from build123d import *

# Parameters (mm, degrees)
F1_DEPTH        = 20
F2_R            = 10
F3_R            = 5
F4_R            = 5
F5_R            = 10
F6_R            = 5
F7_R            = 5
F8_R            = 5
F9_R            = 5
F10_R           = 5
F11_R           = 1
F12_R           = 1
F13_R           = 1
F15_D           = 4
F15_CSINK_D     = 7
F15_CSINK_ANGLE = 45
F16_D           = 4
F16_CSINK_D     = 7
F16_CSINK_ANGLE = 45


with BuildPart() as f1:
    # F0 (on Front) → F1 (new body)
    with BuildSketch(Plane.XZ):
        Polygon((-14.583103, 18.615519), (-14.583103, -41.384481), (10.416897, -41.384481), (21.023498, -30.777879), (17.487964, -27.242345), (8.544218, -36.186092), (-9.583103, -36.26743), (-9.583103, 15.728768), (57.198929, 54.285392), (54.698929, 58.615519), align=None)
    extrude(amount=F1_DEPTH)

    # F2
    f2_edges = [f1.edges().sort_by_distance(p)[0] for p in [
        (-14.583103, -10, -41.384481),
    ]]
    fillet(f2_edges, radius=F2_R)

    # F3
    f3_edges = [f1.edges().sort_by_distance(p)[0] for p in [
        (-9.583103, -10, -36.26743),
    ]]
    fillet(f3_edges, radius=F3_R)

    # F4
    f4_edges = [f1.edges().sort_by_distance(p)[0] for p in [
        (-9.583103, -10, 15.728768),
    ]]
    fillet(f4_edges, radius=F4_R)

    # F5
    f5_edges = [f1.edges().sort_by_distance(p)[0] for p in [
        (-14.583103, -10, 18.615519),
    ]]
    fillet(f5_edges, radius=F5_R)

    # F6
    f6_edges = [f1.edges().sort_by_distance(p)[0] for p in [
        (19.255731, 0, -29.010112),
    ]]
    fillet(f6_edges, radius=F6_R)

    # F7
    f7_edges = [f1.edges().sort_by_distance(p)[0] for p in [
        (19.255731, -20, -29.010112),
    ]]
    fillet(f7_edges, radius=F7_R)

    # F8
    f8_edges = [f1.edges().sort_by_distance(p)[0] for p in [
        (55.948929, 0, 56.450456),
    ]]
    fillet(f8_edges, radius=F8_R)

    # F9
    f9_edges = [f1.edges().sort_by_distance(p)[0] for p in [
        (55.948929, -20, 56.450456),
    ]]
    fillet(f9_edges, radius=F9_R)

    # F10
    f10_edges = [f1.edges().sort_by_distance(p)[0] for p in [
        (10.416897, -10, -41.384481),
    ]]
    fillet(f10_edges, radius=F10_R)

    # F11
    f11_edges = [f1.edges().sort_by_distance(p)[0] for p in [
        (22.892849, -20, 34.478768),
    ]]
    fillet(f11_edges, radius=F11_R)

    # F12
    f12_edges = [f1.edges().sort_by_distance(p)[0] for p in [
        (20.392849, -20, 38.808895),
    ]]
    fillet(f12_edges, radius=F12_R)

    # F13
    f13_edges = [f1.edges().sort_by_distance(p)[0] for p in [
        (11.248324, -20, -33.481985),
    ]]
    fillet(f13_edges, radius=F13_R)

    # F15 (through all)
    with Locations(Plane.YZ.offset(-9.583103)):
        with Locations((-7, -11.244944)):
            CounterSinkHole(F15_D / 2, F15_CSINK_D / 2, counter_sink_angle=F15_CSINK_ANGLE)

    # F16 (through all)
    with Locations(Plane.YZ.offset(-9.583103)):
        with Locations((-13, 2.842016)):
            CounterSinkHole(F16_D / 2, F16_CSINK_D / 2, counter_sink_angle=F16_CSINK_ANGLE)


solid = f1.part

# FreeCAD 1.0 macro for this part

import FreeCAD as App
import Part
import Sketcher
Q = App.Units.Quantity


def edges_at(feature, points):
    """Names of the edges that pass closest to the given points."""
    edges = feature.Shape.Edges
    near = lambda p: min(range(len(edges)), key=lambda i: edges[i].distToShape(Part.Vertex(*p))[0])
    return sorted({f"Edge{near(p) + 1}" for p in points})

doc = App.newDocument("Part")
body = doc.addObject("PartDesign::Body", "Body")

sketch1 = body.newObject("Sketcher::SketchObject", "Sketch")
sketch1.AttachmentSupport = (doc.getObject("XZ_Plane"), [""])
sketch1.MapMode = "FlatFace"
sketch1.addGeometry(Part.LineSegment(App.Vector(-14.583103, 18.615519, 0), App.Vector(-14.583103, -41.384481, 0)), False)
sketch1.addGeometry(Part.LineSegment(App.Vector(-14.583103, -41.384481, 0), App.Vector(10.416897, -41.384481, 0)), False)
sketch1.addGeometry(Part.LineSegment(App.Vector(10.416897, -41.384481, 0), App.Vector(21.023498, -30.777879, 0)), False)
sketch1.addGeometry(Part.LineSegment(App.Vector(21.023498, -30.777879, 0), App.Vector(17.487964, -27.242345, 0)), False)
sketch1.addGeometry(Part.LineSegment(App.Vector(17.487964, -27.242345, 0), App.Vector(8.544218, -36.186092, 0)), False)
sketch1.addGeometry(Part.LineSegment(App.Vector(8.544218, -36.186092, 0), App.Vector(-9.583103, -36.26743, 0)), False)
sketch1.addGeometry(Part.LineSegment(App.Vector(-9.583103, -36.26743, 0), App.Vector(-9.583103, 15.728768, 0)), False)
sketch1.addGeometry(Part.LineSegment(App.Vector(-9.583103, 15.728768, 0), App.Vector(57.198929, 54.285392, 0)), False)
sketch1.addGeometry(Part.LineSegment(App.Vector(57.198929, 54.285392, 0), App.Vector(54.698929, 58.615519, 0)), False)
sketch1.addGeometry(Part.LineSegment(App.Vector(54.698929, 58.615519, 0), App.Vector(-14.583103, 18.615519, 0)), False)
sketch1.addConstraint(Sketcher.Constraint("Coincident", 0, 2, 1, 1))
sketch1.addConstraint(Sketcher.Constraint("Coincident", 1, 2, 2, 1))
sketch1.addConstraint(Sketcher.Constraint("Coincident", 2, 2, 3, 1))
sketch1.addConstraint(Sketcher.Constraint("Coincident", 3, 2, 4, 1))
sketch1.addConstraint(Sketcher.Constraint("Coincident", 4, 2, 5, 1))
sketch1.addConstraint(Sketcher.Constraint("Coincident", 5, 2, 6, 1))
sketch1.addConstraint(Sketcher.Constraint("Coincident", 6, 2, 7, 1))
sketch1.addConstraint(Sketcher.Constraint("Coincident", 7, 2, 8, 1))
sketch1.addConstraint(Sketcher.Constraint("Coincident", 8, 2, 9, 1))
sketch1.addConstraint(Sketcher.Constraint("Coincident", 9, 2, 0, 1))
sketch1.addConstraint(Sketcher.Constraint("Vertical", 0))
sketch1.addConstraint(Sketcher.Constraint("Horizontal", 1))
sketch1.addConstraint(Sketcher.Constraint("Vertical", 6))
sketch1.addConstraint(Sketcher.Constraint("Perpendicular", 2, 3))
sketch1.addConstraint(Sketcher.Constraint("Perpendicular", 3, 4))
sketch1.addConstraint(Sketcher.Constraint("Perpendicular", 7, 8))
sketch1.addConstraint(Sketcher.Constraint("Perpendicular", 8, 9))
sketch1.addConstraint(Sketcher.Constraint("Equal", 3, 8))
sketch1.addConstraint(Sketcher.Constraint("DistanceX", 1, 1, 1, 2, Q("25 mm")))
sketch1.addConstraint(Sketcher.Constraint("DistanceY", 0, 2, 0, 1, Q("60 mm")))
sketch1.addConstraint(Sketcher.Constraint("Angle", 2, Q("45.000003 deg")))
sketch1.addConstraint(Sketcher.Constraint("Angle", 7, Q("30 deg")))
sketch1.addConstraint(Sketcher.Constraint("Distance", 2, Q("15 mm")))
sketch1.addConstraint(Sketcher.Constraint("Distance", 3, Q("5 mm")))
sketch1.addConstraint(Sketcher.Constraint("Distance", 9, Q("80 mm")))
sketch1.addConstraint(Sketcher.Constraint("DistanceX", 0, 2, 5, 2, Q("5 mm")))
sketch1.addConstraint(Sketcher.Constraint("DistanceX", -1, 1, 2, 2, Q("21.023498 mm")))
sketch1.addConstraint(Sketcher.Constraint("DistanceY", 6, 1, 6, 2, Q("51.996198 mm")))
sketch1.addConstraint(Sketcher.Constraint("DistanceY", 0, 2, -1, 1, Q("41.384481 mm")))
sketch1.addConstraint(Sketcher.Constraint("DistanceX", -1, 1, 4, 2, Q("8.544218 mm")))
pad1 = body.newObject("PartDesign::Pad", "Pad")
pad1.Profile = sketch1
pad1.Length = 20
doc.recompute()

fillet = body.newObject("PartDesign::Fillet", "Fillet")
fillet.Base = (pad1, edges_at(pad1, [(-14.583, -10, -41.384)]))
fillet.Radius = 10
doc.recompute()

fillet2 = body.newObject("PartDesign::Fillet", "Fillet001")
fillet2.Base = (fillet, edges_at(fillet, [(-9.583, -10, -36.267)]))
fillet2.Radius = 5
doc.recompute()

fillet3 = body.newObject("PartDesign::Fillet", "Fillet002")
fillet3.Base = (fillet2, edges_at(fillet2, [(-9.583, -10, 15.729)]))
fillet3.Radius = 5
doc.recompute()

fillet4 = body.newObject("PartDesign::Fillet", "Fillet003")
fillet4.Base = (fillet3, edges_at(fillet3, [(-14.583, -10, 18.616)]))
fillet4.Radius = 10
doc.recompute()

fillet5 = body.newObject("PartDesign::Fillet", "Fillet004")
fillet5.Base = (fillet4, edges_at(fillet4, [(19.256, 0, -29.01)]))
fillet5.Radius = 5
doc.recompute()

fillet6 = body.newObject("PartDesign::Fillet", "Fillet005")
fillet6.Base = (fillet5, edges_at(fillet5, [(19.256, -20, -29.01)]))
fillet6.Radius = 5
doc.recompute()

fillet7 = body.newObject("PartDesign::Fillet", "Fillet006")
fillet7.Base = (fillet6, edges_at(fillet6, [(55.949, 0, 56.45)]))
fillet7.Radius = 5
doc.recompute()

fillet8 = body.newObject("PartDesign::Fillet", "Fillet007")
fillet8.Base = (fillet7, edges_at(fillet7, [(55.949, -20, 56.45)]))
fillet8.Radius = 5
doc.recompute()

fillet9 = body.newObject("PartDesign::Fillet", "Fillet008")
fillet9.Base = (fillet8, edges_at(fillet8, [(10.417, -10, -41.384)]))
fillet9.Radius = 5
doc.recompute()

fillet10 = body.newObject("PartDesign::Fillet", "Fillet009")
fillet10.Base = (fillet9, edges_at(fillet9, [(22.893, -20, 34.479)]))
fillet10.Radius = 1
doc.recompute()

fillet11 = body.newObject("PartDesign::Fillet", "Fillet010")
fillet11.Base = (fillet10, edges_at(fillet10, [(20.393, -20, 38.809)]))
fillet11.Radius = 1
doc.recompute()

fillet12 = body.newObject("PartDesign::Fillet", "Fillet011")
fillet12.Base = (fillet11, edges_at(fillet11, [(10.746, -20, -33.984)]))
fillet12.Radius = 1

sketch2 = body.newObject("Sketcher::SketchObject", "Sketch001")
sketch2.AttachmentSupport = (doc.getObject("YZ_Plane"), [""])
sketch2.MapMode = "FlatFace"
sketch2.AttachmentOffset = App.Placement(App.Vector(0, 0, -9.583103), App.Rotation())
sketch2.addGeometry(Part.Circle(App.Vector(-7, -11.244944, 0), App.Vector(0, 0, 1), 2), False)
sketch2.addConstraint(Sketcher.Constraint("Diameter", 0, Q("4 mm")))
sketch2.addConstraint(Sketcher.Constraint("DistanceX", 0, 3, -1, 1, Q("7 mm")))
sketch2.addConstraint(Sketcher.Constraint("DistanceY", 0, 3, -1, 1, Q("11.244944 mm")))
doc.recompute()
hole = body.newObject("PartDesign::Hole", "Hole")
hole.Profile = sketch2
hole.ThreadType = "None"
hole.Diameter = 4
hole.DepthType = "ThroughAll"
hole.HoleCutType = "Countersink"
hole.HoleCutDiameter = 7
hole.HoleCutCountersinkAngle = 45

sketch3 = body.newObject("Sketcher::SketchObject", "Sketch002")
sketch3.AttachmentSupport = (doc.getObject("YZ_Plane"), [""])
sketch3.MapMode = "FlatFace"
sketch3.AttachmentOffset = App.Placement(App.Vector(0, 0, -9.583103), App.Rotation())
sketch3.addGeometry(Part.Circle(App.Vector(-13, 2.842016, 0), App.Vector(0, 0, 1), 2), False)
sketch3.addConstraint(Sketcher.Constraint("Diameter", 0, Q("4 mm")))
sketch3.addConstraint(Sketcher.Constraint("DistanceX", 0, 3, -1, 1, Q("13 mm")))
sketch3.addConstraint(Sketcher.Constraint("DistanceY", -1, 1, 0, 3, Q("2.842016 mm")))
doc.recompute()
hole2 = body.newObject("PartDesign::Hole", "Hole001")
hole2.Profile = sketch3
hole2.ThreadType = "None"
hole2.Diameter = 4
hole2.DepthType = "ThroughAll"
hole2.HoleCutType = "Countersink"
hole2.HoleCutDiameter = 7
hole2.HoleCutCountersinkAngle = 45

doc.recompute()
